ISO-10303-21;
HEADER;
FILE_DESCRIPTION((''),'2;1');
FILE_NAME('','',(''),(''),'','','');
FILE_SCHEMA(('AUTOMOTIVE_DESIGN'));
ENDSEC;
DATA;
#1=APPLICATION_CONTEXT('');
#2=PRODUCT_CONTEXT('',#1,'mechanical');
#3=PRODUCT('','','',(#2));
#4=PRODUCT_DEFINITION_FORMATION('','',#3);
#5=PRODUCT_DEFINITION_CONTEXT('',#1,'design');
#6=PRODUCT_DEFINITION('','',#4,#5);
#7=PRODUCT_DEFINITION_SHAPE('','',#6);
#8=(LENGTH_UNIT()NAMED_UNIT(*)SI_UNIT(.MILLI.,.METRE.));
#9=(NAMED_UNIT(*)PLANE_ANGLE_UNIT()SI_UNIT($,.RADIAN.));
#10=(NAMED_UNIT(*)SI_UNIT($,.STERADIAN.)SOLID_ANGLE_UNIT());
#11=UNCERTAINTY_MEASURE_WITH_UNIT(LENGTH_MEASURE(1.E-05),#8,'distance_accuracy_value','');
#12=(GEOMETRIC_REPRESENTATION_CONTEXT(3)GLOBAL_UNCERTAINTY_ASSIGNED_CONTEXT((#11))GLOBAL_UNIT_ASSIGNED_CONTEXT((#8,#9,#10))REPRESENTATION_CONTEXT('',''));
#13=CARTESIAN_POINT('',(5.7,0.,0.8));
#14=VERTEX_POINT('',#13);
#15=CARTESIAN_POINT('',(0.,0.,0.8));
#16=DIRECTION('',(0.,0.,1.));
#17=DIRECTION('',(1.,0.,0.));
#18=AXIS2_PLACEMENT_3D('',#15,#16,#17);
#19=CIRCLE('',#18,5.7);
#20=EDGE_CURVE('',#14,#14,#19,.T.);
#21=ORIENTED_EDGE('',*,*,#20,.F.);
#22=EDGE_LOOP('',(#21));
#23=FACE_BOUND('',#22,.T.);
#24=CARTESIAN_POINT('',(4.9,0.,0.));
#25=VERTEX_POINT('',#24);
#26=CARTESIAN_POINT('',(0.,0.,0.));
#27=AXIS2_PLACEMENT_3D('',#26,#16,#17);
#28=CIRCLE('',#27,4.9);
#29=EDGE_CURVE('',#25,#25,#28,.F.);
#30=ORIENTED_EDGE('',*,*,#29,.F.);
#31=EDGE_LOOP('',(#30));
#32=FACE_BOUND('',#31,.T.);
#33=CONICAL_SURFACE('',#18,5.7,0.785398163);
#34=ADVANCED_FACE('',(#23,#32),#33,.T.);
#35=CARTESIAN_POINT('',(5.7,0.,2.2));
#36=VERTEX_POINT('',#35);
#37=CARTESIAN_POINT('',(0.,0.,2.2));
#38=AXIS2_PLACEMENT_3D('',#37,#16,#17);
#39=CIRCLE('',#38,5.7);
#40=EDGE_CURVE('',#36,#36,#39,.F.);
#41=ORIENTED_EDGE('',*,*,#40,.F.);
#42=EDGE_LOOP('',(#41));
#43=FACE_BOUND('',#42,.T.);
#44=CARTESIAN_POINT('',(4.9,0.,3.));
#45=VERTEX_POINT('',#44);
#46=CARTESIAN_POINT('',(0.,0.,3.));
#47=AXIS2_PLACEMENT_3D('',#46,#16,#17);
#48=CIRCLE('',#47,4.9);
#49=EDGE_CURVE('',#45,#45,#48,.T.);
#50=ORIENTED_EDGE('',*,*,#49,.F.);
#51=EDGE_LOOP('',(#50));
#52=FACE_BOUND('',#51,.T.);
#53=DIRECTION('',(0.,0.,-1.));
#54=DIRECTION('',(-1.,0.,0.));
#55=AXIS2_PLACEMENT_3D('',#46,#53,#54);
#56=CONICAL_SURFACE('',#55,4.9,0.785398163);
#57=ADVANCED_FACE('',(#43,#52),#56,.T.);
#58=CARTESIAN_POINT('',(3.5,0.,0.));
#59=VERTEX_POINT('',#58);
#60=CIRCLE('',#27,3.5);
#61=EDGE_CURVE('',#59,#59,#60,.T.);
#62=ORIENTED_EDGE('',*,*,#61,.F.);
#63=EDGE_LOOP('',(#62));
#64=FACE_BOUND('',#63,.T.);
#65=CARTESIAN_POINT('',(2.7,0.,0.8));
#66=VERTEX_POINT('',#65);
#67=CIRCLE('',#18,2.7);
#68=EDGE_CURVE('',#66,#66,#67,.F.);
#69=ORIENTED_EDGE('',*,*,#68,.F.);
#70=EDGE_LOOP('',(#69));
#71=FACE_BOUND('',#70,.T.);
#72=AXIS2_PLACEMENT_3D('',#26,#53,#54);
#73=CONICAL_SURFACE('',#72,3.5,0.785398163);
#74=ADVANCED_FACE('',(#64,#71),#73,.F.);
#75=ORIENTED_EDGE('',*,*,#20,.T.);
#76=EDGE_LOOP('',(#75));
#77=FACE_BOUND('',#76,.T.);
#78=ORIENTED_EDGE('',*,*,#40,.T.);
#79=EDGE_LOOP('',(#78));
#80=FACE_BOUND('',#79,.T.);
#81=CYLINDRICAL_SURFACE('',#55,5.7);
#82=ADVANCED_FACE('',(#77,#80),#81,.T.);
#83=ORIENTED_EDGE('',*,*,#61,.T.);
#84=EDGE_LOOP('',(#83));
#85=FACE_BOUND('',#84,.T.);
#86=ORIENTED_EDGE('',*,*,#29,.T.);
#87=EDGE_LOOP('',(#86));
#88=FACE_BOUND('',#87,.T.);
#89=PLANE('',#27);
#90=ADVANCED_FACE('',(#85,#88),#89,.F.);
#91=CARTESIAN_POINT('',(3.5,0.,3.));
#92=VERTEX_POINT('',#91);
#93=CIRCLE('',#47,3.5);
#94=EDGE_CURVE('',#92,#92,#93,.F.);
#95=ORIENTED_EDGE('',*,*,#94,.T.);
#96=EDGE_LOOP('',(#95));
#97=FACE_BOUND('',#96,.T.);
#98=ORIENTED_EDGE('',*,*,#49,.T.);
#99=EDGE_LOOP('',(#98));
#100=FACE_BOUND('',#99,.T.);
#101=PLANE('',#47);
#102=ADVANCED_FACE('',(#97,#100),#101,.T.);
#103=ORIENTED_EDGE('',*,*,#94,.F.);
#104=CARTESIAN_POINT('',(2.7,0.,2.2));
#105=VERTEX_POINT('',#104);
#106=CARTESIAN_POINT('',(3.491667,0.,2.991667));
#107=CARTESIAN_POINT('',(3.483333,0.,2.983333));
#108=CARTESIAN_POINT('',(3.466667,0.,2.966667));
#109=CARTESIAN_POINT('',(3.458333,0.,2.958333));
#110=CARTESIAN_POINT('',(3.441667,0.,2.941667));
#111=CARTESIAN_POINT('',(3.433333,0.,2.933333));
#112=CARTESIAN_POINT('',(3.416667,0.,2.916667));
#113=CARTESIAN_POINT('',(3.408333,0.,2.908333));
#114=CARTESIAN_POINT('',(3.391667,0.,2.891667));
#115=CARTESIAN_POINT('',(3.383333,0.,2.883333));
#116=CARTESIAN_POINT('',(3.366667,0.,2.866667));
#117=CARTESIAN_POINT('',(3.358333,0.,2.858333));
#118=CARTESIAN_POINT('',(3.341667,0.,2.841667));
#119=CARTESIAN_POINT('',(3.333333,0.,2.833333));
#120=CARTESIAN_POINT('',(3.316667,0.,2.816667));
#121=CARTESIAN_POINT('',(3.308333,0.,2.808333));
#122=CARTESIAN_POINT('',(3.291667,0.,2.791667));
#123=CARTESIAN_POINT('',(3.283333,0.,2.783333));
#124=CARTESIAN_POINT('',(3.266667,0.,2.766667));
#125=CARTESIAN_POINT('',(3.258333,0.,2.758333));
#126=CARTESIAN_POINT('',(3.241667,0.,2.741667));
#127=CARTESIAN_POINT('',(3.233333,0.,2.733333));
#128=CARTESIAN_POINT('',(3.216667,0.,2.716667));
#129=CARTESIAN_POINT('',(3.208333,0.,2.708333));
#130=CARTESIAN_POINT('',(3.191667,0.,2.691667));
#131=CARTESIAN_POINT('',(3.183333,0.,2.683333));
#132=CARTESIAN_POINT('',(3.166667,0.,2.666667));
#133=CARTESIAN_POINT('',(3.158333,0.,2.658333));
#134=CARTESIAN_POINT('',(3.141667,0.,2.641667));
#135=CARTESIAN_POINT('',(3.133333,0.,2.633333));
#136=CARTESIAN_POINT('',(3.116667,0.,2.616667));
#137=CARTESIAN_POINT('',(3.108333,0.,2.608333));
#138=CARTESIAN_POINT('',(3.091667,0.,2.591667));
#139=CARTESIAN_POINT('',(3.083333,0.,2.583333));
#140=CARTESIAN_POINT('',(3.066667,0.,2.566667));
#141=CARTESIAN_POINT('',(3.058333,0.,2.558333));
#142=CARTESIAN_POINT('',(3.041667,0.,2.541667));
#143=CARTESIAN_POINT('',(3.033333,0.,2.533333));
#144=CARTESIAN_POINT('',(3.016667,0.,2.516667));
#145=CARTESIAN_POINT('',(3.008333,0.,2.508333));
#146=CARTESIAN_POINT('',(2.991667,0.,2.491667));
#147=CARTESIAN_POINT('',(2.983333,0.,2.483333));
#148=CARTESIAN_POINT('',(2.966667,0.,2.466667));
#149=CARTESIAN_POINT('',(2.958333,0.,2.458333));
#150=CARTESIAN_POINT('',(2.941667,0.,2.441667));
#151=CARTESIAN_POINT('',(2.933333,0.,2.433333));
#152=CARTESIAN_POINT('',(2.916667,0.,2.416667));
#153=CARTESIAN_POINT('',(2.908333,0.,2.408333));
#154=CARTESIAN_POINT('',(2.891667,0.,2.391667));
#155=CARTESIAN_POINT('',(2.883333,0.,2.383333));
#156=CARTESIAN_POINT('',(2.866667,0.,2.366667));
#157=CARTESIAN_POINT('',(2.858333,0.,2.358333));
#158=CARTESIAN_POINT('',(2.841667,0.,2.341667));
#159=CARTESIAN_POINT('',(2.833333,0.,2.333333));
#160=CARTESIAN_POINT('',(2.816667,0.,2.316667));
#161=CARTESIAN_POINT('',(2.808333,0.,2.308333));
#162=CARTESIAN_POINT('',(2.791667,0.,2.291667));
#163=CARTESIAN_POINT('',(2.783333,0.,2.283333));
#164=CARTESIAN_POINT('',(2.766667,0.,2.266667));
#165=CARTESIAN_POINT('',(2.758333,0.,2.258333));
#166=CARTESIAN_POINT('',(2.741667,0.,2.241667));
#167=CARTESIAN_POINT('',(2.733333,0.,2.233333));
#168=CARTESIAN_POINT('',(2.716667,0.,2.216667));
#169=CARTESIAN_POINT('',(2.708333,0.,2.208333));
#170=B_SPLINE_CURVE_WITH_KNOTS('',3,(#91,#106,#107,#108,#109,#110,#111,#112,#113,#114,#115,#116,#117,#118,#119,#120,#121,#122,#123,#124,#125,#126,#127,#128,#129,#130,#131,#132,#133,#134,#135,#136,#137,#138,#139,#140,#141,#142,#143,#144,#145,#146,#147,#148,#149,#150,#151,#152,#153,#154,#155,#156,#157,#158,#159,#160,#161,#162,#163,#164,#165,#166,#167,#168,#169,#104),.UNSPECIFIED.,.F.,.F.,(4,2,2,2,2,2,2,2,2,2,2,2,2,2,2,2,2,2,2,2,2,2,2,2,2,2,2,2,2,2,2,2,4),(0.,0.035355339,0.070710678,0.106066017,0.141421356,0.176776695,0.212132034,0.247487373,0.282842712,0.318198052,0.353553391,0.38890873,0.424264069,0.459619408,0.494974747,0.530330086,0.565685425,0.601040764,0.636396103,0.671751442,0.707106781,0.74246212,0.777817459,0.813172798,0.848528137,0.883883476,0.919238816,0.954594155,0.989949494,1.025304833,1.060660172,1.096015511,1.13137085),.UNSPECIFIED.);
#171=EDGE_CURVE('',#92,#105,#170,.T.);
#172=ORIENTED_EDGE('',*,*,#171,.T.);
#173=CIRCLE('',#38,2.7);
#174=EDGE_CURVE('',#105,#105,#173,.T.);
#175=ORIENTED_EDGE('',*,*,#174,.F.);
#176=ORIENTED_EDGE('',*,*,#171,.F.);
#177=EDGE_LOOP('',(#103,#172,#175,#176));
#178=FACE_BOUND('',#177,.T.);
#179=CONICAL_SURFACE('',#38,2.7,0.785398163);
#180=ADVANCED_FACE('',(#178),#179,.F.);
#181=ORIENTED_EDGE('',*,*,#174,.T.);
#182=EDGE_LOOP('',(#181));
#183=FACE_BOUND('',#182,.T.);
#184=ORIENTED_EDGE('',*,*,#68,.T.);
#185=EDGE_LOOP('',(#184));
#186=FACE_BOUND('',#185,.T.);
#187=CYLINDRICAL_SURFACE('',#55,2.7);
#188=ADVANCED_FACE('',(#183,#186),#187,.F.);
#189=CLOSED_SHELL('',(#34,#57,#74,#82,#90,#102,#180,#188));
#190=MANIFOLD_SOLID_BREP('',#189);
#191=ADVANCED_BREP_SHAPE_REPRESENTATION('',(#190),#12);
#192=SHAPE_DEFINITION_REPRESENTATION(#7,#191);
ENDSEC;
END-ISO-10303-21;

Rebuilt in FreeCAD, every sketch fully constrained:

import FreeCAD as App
import Part
import Sketcher
from FreeCAD import Vector
Q = App.Units.Quantity


def edges_at(feature, points):
    """Names of the edges that pass closest to the given points."""
    edges = feature.Shape.Edges
    near = lambda p: min(range(len(edges)), key=lambda i: edges[i].distToShape(Part.Vertex(*p))[0])
    return sorted({f"Edge{near(p) + 1}" for p in points})

doc = App.newDocument("Part")
params = doc.addObject("Spreadsheet::Sheet", "Params")
for row, (alias, value) in enumerate([
    ("sketch1_diameter", "11.4 mm"),
    ("sketch1_diameter2", "5.4 mm"),
    ("pad1_length", "3 mm"),
    ("chamfer_size", "0.8 mm"),
], start=1):
    params.set(f"A{row}", alias)
    params.set(f"B{row}", "=" + value)
    params.setAlias(f"B{row}", alias)

body = doc.addObject("PartDesign::Body", "Body")

sketch1 = body.newObject("Sketcher::SketchObject", "Sketch")
sketch1.AttachmentSupport = (doc.getObject("XY_Plane"), [""])
sketch1.MapMode = "FlatFace"
sketch1.addGeometry(Part.Circle(Vector(0, 0, 0), Vector(0, 0, 1), 5.7), False)
sketch1.addGeometry(Part.Circle(Vector(0, 0, 0), Vector(0, 0, 1), 2.7), False)
sketch1.addConstraint(Sketcher.Constraint("Coincident", 0, 3, -1, 1))
sketch1.addConstraint(Sketcher.Constraint("Coincident", 1, 3, -1, 1))
sketch1.addConstraint(Sketcher.Constraint("Diameter", 0, Q("11.4 mm")))
sketch1.addConstraint(Sketcher.Constraint("Diameter", 1, Q("5.4 mm")))
sketch1.setExpression("Constraints[2]", "Params.sketch1_diameter")
sketch1.setExpression("Constraints[3]", "Params.sketch1_diameter2")
pad1 = body.newObject("PartDesign::Pad", "Pad")
pad1.Profile = sketch1
pad1.setExpression("Length", "Params.pad1_length")
doc.recompute()

chamfer = body.newObject("PartDesign::Chamfer", "Chamfer")
chamfer.Base = (pad1, edges_at(pad1, [
    (-5.7, 0, 0),
    (-5.7, 0, 3),
    (-2.7, 0, 0),
    (-2.7, 0, 3),
]))
chamfer.setExpression("Size", "Params.chamfer_size")

doc.recompute()
